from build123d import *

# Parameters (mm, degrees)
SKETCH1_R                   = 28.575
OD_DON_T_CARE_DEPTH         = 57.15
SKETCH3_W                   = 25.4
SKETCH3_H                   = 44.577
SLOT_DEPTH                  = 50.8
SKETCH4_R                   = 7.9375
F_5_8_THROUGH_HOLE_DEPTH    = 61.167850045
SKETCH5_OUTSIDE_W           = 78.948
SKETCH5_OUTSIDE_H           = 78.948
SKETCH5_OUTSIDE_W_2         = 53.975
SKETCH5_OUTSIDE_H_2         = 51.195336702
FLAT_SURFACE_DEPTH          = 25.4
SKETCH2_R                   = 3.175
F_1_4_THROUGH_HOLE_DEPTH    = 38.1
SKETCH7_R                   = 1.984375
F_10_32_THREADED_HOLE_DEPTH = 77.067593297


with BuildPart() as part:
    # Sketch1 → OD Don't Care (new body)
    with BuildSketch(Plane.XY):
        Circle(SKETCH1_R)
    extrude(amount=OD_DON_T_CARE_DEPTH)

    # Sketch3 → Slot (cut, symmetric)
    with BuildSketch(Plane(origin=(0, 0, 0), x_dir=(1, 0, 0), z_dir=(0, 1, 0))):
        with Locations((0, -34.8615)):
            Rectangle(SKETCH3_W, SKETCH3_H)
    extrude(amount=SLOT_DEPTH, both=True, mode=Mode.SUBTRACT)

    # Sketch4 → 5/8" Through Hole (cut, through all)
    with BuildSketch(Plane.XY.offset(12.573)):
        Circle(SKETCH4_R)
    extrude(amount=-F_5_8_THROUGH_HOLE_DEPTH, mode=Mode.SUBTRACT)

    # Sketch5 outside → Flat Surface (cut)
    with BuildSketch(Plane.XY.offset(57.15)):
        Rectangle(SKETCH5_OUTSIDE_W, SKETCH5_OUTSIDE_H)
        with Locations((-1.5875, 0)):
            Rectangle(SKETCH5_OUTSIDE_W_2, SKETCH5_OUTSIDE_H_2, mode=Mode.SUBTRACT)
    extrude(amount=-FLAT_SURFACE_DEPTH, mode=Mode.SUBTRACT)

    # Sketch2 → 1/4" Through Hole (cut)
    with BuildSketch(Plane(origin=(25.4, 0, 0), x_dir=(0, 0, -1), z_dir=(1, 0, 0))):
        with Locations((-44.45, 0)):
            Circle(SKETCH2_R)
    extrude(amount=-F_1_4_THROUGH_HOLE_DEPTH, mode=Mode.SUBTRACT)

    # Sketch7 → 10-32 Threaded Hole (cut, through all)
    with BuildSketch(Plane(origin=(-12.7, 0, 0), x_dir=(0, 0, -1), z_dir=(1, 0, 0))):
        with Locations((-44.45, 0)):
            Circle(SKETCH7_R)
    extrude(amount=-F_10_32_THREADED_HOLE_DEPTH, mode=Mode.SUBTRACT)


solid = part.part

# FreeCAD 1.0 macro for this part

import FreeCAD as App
import Part
import Sketcher
Q = App.Units.Quantity


def add_polygon(sketch, points):
    """Adds a closed chain of lines whose ends are joined by coincident constraints."""
    first, n = sketch.GeometryCount, len(points)
    for a, b in zip(points, points[1:] + points[:1]):
        sketch.addGeometry(Part.LineSegment(App.Vector(*a, 0), App.Vector(*b, 0)), False)
    for i in range(n):
        sketch.addConstraint(Sketcher.Constraint("Coincident", first + i, 2, first + (i + 1) % n, 1))

doc = App.newDocument("Part")
body = doc.addObject("PartDesign::Body", "Body")

# Sketch on XY plane
sketch1 = body.newObject("Sketcher::SketchObject", "Sketch")
sketch1.AttachmentSupport = (doc.getObject("XY_Plane"), [""])
sketch1.MapMode = "FlatFace"
sketch1.addGeometry(Part.Circle(App.Vector(0, 0, 0), App.Vector(0, 0, 1), 28.575), False)
sketch1.addConstraint([
    Sketcher.Constraint("Coincident", 0, 3, -1, 1),
    Sketcher.Constraint("Diameter", 0, Q("2.25 in")),
])
pad1 = body.newObject("PartDesign::Pad", "Pad")
pad1.Profile = sketch1
pad1.Length = Q("2.25 in")

# Sketch on XZ plane
sketch2 = body.newObject("Sketcher::SketchObject", "Sketch001")
sketch2.AttachmentSupport = (doc.getObject("XZ_Plane"), [""])
sketch2.MapMode = "FlatFace"
add_polygon(sketch2, [(-12.7, 12.573), (-12.7, 57.15), (12.7, 57.15), (12.7, 12.573)])  # lines 0-3
sketch2.addConstraint([
    Sketcher.Constraint("Vertical", 0),
    Sketcher.Constraint("Horizontal", 1),
    Sketcher.Constraint("Vertical", 2),
    Sketcher.Constraint("Horizontal", 3),
    Sketcher.Constraint("DistanceX", 1, 1, 1, 2, Q("1 in")),
    Sketcher.Constraint("DistanceX", 0, 2, -1, 1, Q("0.5 in")),
    Sketcher.Constraint("DistanceY", 0, 1, 0, 2, Q("1.755 in")),
    Sketcher.Constraint("DistanceY", -1, 1, 0, 2, Q("2.25 in")),
])
pocket1 = body.newObject("PartDesign::Pocket", "Pocket")
pocket1.Profile = sketch2
pocket1.Length = Q("4 in")
pocket1.Midplane = True

# Sketch on XY plane
sketch3 = body.newObject("Sketcher::SketchObject", "Sketch002")
sketch3.AttachmentSupport = (doc.getObject("XY_Plane"), [""])
sketch3.MapMode = "FlatFace"
sketch3.AttachmentOffset = App.Placement(App.Vector(0, 0, 0.495 * 25.4), App.Rotation())
sketch3.addGeometry(Part.Circle(App.Vector(0, 0, 0), App.Vector(0, 0, 1), 7.9375), False)
sketch3.addConstraint([
    Sketcher.Constraint("Coincident", 0, 3, -1, 1),
    Sketcher.Constraint("Diameter", 0, Q("0.625 in")),
])
pocket2 = body.newObject("PartDesign::Pocket", "Pocket001")
pocket2.Profile = sketch3
pocket2.Type = "ThroughAll"

# Sketch on XY plane
sketch4 = body.newObject("Sketcher::SketchObject", "Sketch003")
sketch4.AttachmentSupport = (doc.getObject("XY_Plane"), [""])
sketch4.MapMode = "FlatFace"
sketch4.AttachmentOffset = App.Placement(App.Vector(0, 0, 2.25 * 25.4), App.Rotation())
add_polygon(sketch4, [(-39.474, 39.474), (-39.474, -39.474), (39.474, -39.474), (39.474, 39.474)])  # lines 0-3
add_polygon(sketch4, [(25.4, -25.597668), (-28.575, -25.597668), (-28.575, 25.597668), (25.4, 25.597668)])  # lines 4-7
sketch4.addConstraint([
    Sketcher.Constraint("Vertical", 0),
    Sketcher.Constraint("Horizontal", 1),
    Sketcher.Constraint("Vertical", 2),
    Sketcher.Constraint("Horizontal", 3),
    Sketcher.Constraint("Horizontal", 4),
    Sketcher.Constraint("Vertical", 5),
    Sketcher.Constraint("Horizontal", 6),
    Sketcher.Constraint("Vertical", 7),
    Sketcher.Constraint("Symmetric", 0, 2, 2, 2, -1, 1),
    Sketcher.Constraint("Equal", 3, 0),
    Sketcher.Constraint("DistanceX", -1, 1, 6, 2, Q("1 in")),
    Sketcher.Constraint("DistanceX", 4, 2, 4, 1, Q("2.125 in")),
    Sketcher.Constraint("DistanceX", 1, 1, 1, 2, Q("78.948 mm")),
    Sketcher.Constraint("DistanceY", 5, 1, 5, 2, Q("51.195337 mm")),
    Sketcher.Constraint("DistanceY", 4, 2, -1, 1, Q("25.597668 mm")),
])
pocket3 = body.newObject("PartDesign::Pocket", "Pocket002")
pocket3.Profile = sketch4
pocket3.Length = Q("1 in")

# Sketch on YZ plane
sketch5 = body.newObject("Sketcher::SketchObject", "Sketch004")
sketch5.AttachmentSupport = (doc.getObject("YZ_Plane"), [""])
sketch5.MapMode = "FlatFace"
sketch5.AttachmentOffset = App.Placement(App.Vector(0, 0, 1 * 25.4), App.Rotation())
sketch5.addGeometry(Part.Circle(App.Vector(0, 44.45, 0), App.Vector(0, 0, 1), 3.175), False)
sketch5.addConstraint([
    Sketcher.Constraint("PointOnObject", 0, 3, -2),
    Sketcher.Constraint("Diameter", 0, Q("0.25 in")),
    Sketcher.Constraint("DistanceY", -1, 1, 0, 3, Q("1.75 in")),
])
pocket4 = body.newObject("PartDesign::Pocket", "Pocket003")
pocket4.Profile = sketch5
pocket4.Length = Q("1.5 in")

# Sketch on YZ plane
sketch6 = body.newObject("Sketcher::SketchObject", "Sketch005")
sketch6.AttachmentSupport = (doc.getObject("YZ_Plane"), [""])
sketch6.MapMode = "FlatFace"
sketch6.AttachmentOffset = App.Placement(App.Vector(0, 0, -0.5 * 25.4), App.Rotation())
sketch6.addGeometry(Part.Circle(App.Vector(0, 44.45, 0), App.Vector(0, 0, 1), 1.984375), False)
sketch6.addConstraint([
    Sketcher.Constraint("PointOnObject", 0, 3, -2),
    Sketcher.Constraint("Diameter", 0, Q("0.15625 in")),
    Sketcher.Constraint("DistanceY", -1, 1, 0, 3, Q("1.75 in")),
])
pocket5 = body.newObject("PartDesign::Pocket", "Pocket004")
pocket5.Profile = sketch6
pocket5.Type = "ThroughAll"

doc.recompute()
